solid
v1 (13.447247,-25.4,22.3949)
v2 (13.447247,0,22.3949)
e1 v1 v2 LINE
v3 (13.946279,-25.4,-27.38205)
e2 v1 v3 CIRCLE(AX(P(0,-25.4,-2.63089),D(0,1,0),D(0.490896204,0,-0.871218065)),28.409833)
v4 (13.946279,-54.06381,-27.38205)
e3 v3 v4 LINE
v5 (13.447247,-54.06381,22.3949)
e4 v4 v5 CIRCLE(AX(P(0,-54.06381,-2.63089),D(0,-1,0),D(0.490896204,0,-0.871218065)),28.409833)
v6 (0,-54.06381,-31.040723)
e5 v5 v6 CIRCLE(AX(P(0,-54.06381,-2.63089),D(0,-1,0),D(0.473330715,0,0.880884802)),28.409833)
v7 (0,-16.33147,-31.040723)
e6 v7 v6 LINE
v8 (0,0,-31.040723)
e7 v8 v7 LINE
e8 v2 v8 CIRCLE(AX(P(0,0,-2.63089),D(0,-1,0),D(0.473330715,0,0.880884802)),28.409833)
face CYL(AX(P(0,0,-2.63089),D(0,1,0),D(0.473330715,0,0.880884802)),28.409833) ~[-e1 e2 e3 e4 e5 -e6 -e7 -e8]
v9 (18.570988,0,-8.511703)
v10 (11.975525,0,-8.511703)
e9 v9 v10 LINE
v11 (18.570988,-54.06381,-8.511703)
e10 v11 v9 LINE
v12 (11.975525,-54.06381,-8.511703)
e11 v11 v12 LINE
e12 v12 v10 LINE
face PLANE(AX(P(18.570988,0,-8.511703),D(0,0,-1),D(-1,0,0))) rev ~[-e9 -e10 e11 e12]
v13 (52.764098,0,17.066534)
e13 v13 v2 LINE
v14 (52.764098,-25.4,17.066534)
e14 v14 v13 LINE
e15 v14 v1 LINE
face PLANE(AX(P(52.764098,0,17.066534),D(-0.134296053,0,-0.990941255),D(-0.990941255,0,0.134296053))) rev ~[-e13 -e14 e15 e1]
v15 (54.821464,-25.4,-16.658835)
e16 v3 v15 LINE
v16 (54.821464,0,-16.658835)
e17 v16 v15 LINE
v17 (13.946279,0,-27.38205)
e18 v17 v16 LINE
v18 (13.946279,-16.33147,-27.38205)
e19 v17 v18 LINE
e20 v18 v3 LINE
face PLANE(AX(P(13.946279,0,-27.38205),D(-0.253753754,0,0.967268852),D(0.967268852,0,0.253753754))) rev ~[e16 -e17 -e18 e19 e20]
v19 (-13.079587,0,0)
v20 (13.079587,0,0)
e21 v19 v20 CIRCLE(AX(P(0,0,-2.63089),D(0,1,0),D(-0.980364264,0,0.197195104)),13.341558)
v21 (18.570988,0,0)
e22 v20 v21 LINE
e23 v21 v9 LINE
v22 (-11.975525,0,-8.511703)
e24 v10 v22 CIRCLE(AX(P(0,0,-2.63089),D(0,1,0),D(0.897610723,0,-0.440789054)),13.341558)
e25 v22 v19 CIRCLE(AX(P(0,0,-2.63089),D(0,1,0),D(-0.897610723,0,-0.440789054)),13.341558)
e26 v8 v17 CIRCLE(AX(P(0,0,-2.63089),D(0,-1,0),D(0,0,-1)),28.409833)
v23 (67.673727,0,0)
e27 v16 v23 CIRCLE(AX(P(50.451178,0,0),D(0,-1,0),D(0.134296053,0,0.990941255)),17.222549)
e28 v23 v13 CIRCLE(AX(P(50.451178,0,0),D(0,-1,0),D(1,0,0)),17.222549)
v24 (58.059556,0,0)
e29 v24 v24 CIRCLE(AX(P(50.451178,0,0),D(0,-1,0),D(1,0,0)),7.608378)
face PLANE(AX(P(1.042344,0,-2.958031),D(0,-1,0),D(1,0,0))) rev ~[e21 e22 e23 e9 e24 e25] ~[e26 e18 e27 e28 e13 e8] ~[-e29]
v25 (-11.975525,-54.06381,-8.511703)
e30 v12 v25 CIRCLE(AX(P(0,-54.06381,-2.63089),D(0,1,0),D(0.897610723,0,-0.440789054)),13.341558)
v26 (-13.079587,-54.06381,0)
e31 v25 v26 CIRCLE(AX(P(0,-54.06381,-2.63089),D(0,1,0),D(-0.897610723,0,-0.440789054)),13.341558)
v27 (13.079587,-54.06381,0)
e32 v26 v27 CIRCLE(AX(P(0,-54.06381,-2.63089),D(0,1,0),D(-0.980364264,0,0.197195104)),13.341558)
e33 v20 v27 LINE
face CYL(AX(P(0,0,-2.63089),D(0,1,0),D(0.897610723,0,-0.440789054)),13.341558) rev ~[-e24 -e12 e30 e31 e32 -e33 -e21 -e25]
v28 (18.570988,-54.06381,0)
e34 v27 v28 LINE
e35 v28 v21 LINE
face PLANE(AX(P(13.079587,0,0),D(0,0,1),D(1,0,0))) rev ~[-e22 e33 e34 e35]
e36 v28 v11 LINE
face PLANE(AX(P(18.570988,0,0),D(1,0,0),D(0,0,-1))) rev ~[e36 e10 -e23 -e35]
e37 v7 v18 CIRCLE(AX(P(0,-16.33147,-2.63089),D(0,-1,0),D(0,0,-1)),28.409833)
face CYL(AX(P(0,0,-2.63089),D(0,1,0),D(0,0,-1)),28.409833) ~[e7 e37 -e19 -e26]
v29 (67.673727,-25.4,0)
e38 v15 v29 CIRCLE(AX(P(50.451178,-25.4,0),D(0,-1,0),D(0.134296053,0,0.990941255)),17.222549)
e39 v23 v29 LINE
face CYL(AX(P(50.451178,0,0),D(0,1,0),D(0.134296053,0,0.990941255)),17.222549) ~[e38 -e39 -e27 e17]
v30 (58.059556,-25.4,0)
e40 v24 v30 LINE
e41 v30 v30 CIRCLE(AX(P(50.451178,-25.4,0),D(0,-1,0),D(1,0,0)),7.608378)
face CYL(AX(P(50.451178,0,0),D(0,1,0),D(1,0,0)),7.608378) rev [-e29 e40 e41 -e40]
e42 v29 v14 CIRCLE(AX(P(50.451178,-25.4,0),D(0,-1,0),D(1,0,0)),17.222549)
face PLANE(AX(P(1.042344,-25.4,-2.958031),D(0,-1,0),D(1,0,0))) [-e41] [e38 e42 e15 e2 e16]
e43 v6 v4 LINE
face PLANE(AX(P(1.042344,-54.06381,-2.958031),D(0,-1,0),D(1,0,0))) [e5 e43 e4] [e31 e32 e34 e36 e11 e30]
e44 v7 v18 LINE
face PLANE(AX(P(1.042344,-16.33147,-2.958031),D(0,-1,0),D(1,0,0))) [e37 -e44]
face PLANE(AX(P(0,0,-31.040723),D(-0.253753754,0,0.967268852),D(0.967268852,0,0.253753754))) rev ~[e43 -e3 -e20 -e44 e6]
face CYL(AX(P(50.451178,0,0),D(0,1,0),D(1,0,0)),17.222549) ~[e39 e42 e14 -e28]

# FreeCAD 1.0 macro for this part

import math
import FreeCAD as App
import Part
import Sketcher

V = App.Vector
Q = App.Units.Quantity

doc = App.newDocument("Part")
body = doc.addObject("PartDesign::Body", "Body")

sketch1 = body.newObject("Sketcher::SketchObject", "Sketch")
sketch1.AttachmentSupport = (doc.getObject("XZ_Plane"), [""])
sketch1.MapMode = "FlatFace"
sketch1.addGeometry([
    Part.LineSegment(V(0, -31.040723, 0), V(13.946279, -27.38205, 0)),
    Part.LineSegment(V(13.946279, -27.38205, 0), V(54.821464, -16.658835, 0)),
    Part.ArcOfCircle(Part.Circle(V(50.451178, 0, 0), V(0, 0, 1), 17.222549), math.radians(-75.300248), math.radians(0)),
    Part.ArcOfCircle(Part.Circle(V(50.451178, 0, 0), V(0, 0, 1), 17.222549), math.radians(0), math.radians(82.282084)),
    Part.LineSegment(V(52.764098, 17.066534, 0), V(13.447247, 22.3949, 0)),
    Part.ArcOfCircle(Part.Circle(V(0, -2.63089, 0), V(0, 0, 1), 28.409833), math.radians(61.749281), math.radians(270)),
    Part.ArcOfCircle(Part.Circle(V(0, -2.63089, 0), V(0, 0, 1), 13.341558), math.radians(11.372984), math.radians(168.627016)),
    Part.LineSegment(V(13.079587, 0, 0), V(18.570988, 0, 0)),
    Part.LineSegment(V(18.570988, 0, 0), V(18.570988, -8.511703, 0)),
    Part.LineSegment(V(18.570988, -8.511703, 0), V(11.975525, -8.511703, 0)),
    Part.ArcOfCircle(Part.Circle(V(0, -2.63089, 0), V(0, 0, 1), 13.341558), math.radians(-153.845763), math.radians(-26.154237)),
    Part.ArcOfCircle(Part.Circle(V(0, -2.63089, 0), V(0, 0, 1), 13.341558), math.radians(168.627016), math.radians(206.154237)),
    Part.Circle(V(50.451178, 0, 0), V(0, 0, 1), 7.608378),
], False)
sketch1.addConstraint([
    Sketcher.Constraint("Coincident", 0, 2, 1, 1),
    Sketcher.Constraint("Tangent", 1, 2, 2, 1),
    Sketcher.Constraint("Tangent", 2, 2, 3, 1),
    Sketcher.Constraint("Tangent", 3, 2, 4, 1),
    Sketcher.Constraint("Coincident", 4, 2, 5, 1),
    Sketcher.Constraint("Coincident", 5, 2, 0, 1),
    Sketcher.Constraint("Coincident", 6, 1, 7, 1),
    Sketcher.Constraint("Coincident", 7, 2, 8, 1),
    Sketcher.Constraint("Coincident", 8, 2, 9, 1),
    Sketcher.Constraint("Coincident", 9, 2, 10, 2),
    Sketcher.Constraint("Tangent", 10, 1, 11, 2),
    Sketcher.Constraint("Tangent", 11, 1, 6, 2),
    Sketcher.Constraint("Horizontal", 7),
    Sketcher.Constraint("Vertical", 8),
    Sketcher.Constraint("Horizontal", 9),
    Sketcher.Constraint("Coincident", 6, 3, 5, 3),
    Sketcher.Constraint("Coincident", 10, 3, 5, 3),
    Sketcher.Constraint("Coincident", 12, 3, 2, 3),
    Sketcher.Constraint("Equal", 2, 3),
    Sketcher.Constraint("Symmetric", 6, 1, 11, 1, -1, 1),
    Sketcher.Constraint("Symmetric", 9, 2, 10, 1, -2),
    Sketcher.Constraint("PointOnObject", 2, 3, -1),
    Sketcher.Constraint("PointOnObject", 2, 2, -1),
    Sketcher.Constraint("PointOnObject", 5, 2, -2),
    Sketcher.Constraint("Parallel", 0, 1),
    Sketcher.Constraint("Radius", 2, Q("17.222549 mm")),
    Sketcher.Constraint("Diameter", 12, Q("15.216756 mm")),
    Sketcher.Constraint("DistanceX", 7, 1, 7, 2, Q("5.491401 mm")),
    Sketcher.Constraint("Radius", 5, Q("28.409833 mm")),
    Sketcher.Constraint("Radius", 6, Q("13.341558 mm")),
    Sketcher.Constraint("DistanceX", -1, 1, 3, 2, Q("52.764098 mm")),
    Sketcher.Constraint("DistanceY", -1, 1, 4, 2, Q("22.3949 mm")),
    Sketcher.Constraint("DistanceX", 0, 2, 2, 3, Q("36.504899 mm")),
    Sketcher.Constraint("Distance", 1, Q("42.25835 mm")),
    Sketcher.Constraint("DistanceX", 9, 2, 9, 1, Q("6.595462 mm")),
])
pad1 = body.newObject("PartDesign::Pad", "Pad")
pad1.Profile = sketch1
pad1.Length = Q("1 in")

sketch2 = body.newObject("Sketcher::SketchObject", "Sketch001")
sketch2.AttachmentSupport = (doc.getObject("XZ_Plane"), [""])
sketch2.MapMode = "FlatFace"
sketch2.addGeometry([
    Part.LineSegment(V(13.946279, -27.38205, 0), V(54.821464, -16.658835, 0)),
    Part.ArcOfCircle(Part.Circle(V(50.451178, 0, 0), V(0, 0, 1), 17.222549), math.radians(-75.300248), math.radians(0)),
    Part.ArcOfCircle(Part.Circle(V(50.451178, 0, 0), V(0, 0, 1), 17.222549), math.radians(0), math.radians(82.282084)),
    Part.LineSegment(V(52.764098, 17.066534, 0), V(13.447247, 22.3949, 0)),
    Part.ArcOfCircle(Part.Circle(V(0, -2.63089, 0), V(0, 0, 1), 28.409833), math.radians(61.749281), math.radians(270)),
    Part.ArcOfCircle(Part.Circle(V(0, -2.63089, 0), V(0, 0, 1), 28.409833), math.radians(-90), math.radians(-60.600496)),
    Part.LineSegment(V(-17.951954, 0, 0), V(-13.079587, 0, 0)),
    Part.ArcOfCircle(Part.Circle(V(0, -2.63089, 0), V(0, 0, 1), 13.341558), math.radians(11.372984), math.radians(168.627016)),
    Part.LineSegment(V(13.079587, 0, 0), V(18.570988, 0, 0)),
    Part.LineSegment(V(18.570988, 0, 0), V(18.570988, -8.511703, 0)),
    Part.LineSegment(V(18.570988, -8.511703, 0), V(11.975525, -8.511703, 0)),
    Part.ArcOfCircle(Part.Circle(V(0, -2.63089, 0), V(0, 0, 1), 13.341558), math.radians(-153.845763), math.radians(-26.154237)),
    Part.LineSegment(V(-11.975525, -8.511703, 0), V(-17.951954, -8.511703, 0)),
    Part.LineSegment(V(-17.951954, -8.511703, 0), V(-17.951954, 0, 0)),
    Part.Circle(V(50.451178, 0, 0), V(0, 0, 1), 7.608378),
], False)
sketch2.addConstraint([
    Sketcher.Constraint("Tangent", 0, 2, 1, 1),
    Sketcher.Constraint("Tangent", 1, 2, 2, 1),
    Sketcher.Constraint("Tangent", 2, 2, 3, 1),
    Sketcher.Constraint("Coincident", 3, 2, 4, 1),
    Sketcher.Constraint("Tangent", 4, 2, 5, 1),
    Sketcher.Constraint("Coincident", 5, 2, 0, 1),
    Sketcher.Constraint("Coincident", 6, 2, 7, 2),
    Sketcher.Constraint("Coincident", 7, 1, 8, 1),
    Sketcher.Constraint("Coincident", 8, 2, 9, 1),
    Sketcher.Constraint("Coincident", 9, 2, 10, 1),
    Sketcher.Constraint("Coincident", 10, 2, 11, 2),
    Sketcher.Constraint("Coincident", 11, 1, 12, 1),
    Sketcher.Constraint("Coincident", 12, 2, 13, 1),
    Sketcher.Constraint("Coincident", 13, 2, 6, 1),
    Sketcher.Constraint("Horizontal", 6),
    Sketcher.Constraint("Horizontal", 8),
    Sketcher.Constraint("Vertical", 9),
    Sketcher.Constraint("Horizontal", 10),
    Sketcher.Constraint("Horizontal", 12),
    Sketcher.Constraint("Vertical", 13),
    Sketcher.Constraint("Coincident", 7, 3, 4, 3),
    Sketcher.Constraint("Coincident", 11, 3, 4, 3),
    Sketcher.Constraint("Coincident", 14, 3, 1, 3),
    Sketcher.Constraint("Equal", 1, 2),
    Sketcher.Constraint("Equal", 4, 5),
    Sketcher.Constraint("Equal", 7, 11),
    Sketcher.Constraint("Symmetric", 6, 2, 7, 1, -1, 1),
    Sketcher.Constraint("Symmetric", 10, 2, 11, 1, -2),
    Sketcher.Constraint("PointOnObject", 1, 3, -1),
    Sketcher.Constraint("PointOnObject", 1, 2, -1),
    Sketcher.Constraint("PointOnObject", 4, 2, -2),
    Sketcher.Constraint("Radius", 1, Q("17.222549 mm")),
    Sketcher.Constraint("Diameter", 14, Q("15.216756 mm")),
    Sketcher.Constraint("DistanceX", 8, 1, 8, 2, Q("5.491401 mm")),
    Sketcher.Constraint("Radius", 4, Q("28.409833 mm")),
    Sketcher.Constraint("Radius", 7, Q("13.341558 mm")),
    Sketcher.Constraint("DistanceX", 12, 2, 12, 1, Q("5.976429 mm")),
    Sketcher.Constraint("DistanceX", -1, 1, 2, 2, Q("52.764098 mm")),
    Sketcher.Constraint("DistanceY", -1, 1, 3, 2, Q("22.3949 mm")),
    Sketcher.Constraint("Distance", 0, Q("42.25835 mm")),
    Sketcher.Constraint("Distance", 3, Q("39.676269 mm")),
    Sketcher.Constraint("DistanceX", 6, 1, 6, 2, Q("4.872368 mm")),
])
pad2 = body.newObject("PartDesign::Pad", "Pad001")
pad2.Profile = sketch2
pad2.Length = 16.33147

sketch3 = body.newObject("Sketcher::SketchObject", "Sketch002")
sketch3.AttachmentSupport = (doc.getObject("XZ_Plane"), [""])
sketch3.MapMode = "FlatFace"
sketch3.addGeometry([
    Part.ArcOfCircle(Part.Circle(V(0, -2.63089, 0), V(0, 0, 1), 28.409833), math.radians(-60.600496), math.radians(61.749281)),
    Part.ArcOfCircle(Part.Circle(V(0, -2.63089, 0), V(0, 0, 1), 28.409833), math.radians(61.749281), math.radians(270)),
    Part.LineSegment(V(0, -31.040723, 0), V(13.946279, -27.38205, 0)),
    Part.ArcOfCircle(Part.Circle(V(0, -2.63089, 0), V(0, 0, 1), 13.341558), math.radians(-153.845763), math.radians(-26.154237)),
    Part.ArcOfCircle(Part.Circle(V(0, -2.63089, 0), V(0, 0, 1), 13.341558), math.radians(168.627016), math.radians(206.154237)),
    Part.ArcOfCircle(Part.Circle(V(0, -2.63089, 0), V(0, 0, 1), 13.341558), math.radians(11.372984), math.radians(168.627016)),
    Part.LineSegment(V(13.079587, 0, 0), V(18.570988, 0, 0)),
    Part.LineSegment(V(18.570988, 0, 0), V(18.570988, -8.511703, 0)),
    Part.LineSegment(V(18.570988, -8.511703, 0), V(11.975525, -8.511703, 0)),
], False)
sketch3.addConstraint([
    Sketcher.Constraint("Tangent", 0, 2, 1, 1),
    Sketcher.Constraint("Coincident", 1, 2, 2, 1),
    Sketcher.Constraint("Coincident", 2, 2, 0, 1),
    Sketcher.Constraint("Tangent", 3, 1, 4, 2),
    Sketcher.Constraint("Tangent", 4, 1, 5, 2),
    Sketcher.Constraint("Coincident", 5, 1, 6, 1),
    Sketcher.Constraint("Coincident", 6, 2, 7, 1),
    Sketcher.Constraint("Coincident", 7, 2, 8, 1),
    Sketcher.Constraint("Coincident", 8, 2, 3, 2),
    Sketcher.Constraint("Horizontal", 6),
    Sketcher.Constraint("Vertical", 7),
    Sketcher.Constraint("Horizontal", 8),
    Sketcher.Constraint("Coincident", 3, 3, 0, 3),
    Sketcher.Constraint("Coincident", 5, 3, 0, 3),
    Sketcher.Constraint("Equal", 0, 1),
    Sketcher.Constraint("Symmetric", 4, 1, 5, 1, -1, 1),
    Sketcher.Constraint("Symmetric", 3, 1, 8, 2, -2),
    Sketcher.Constraint("PointOnObject", 1, 2, -2),
    Sketcher.Constraint("DistanceX", 6, 1, 6, 2, Q("5.491401 mm")),
    Sketcher.Constraint("Radius", 0, Q("28.409833 mm")),
    Sketcher.Constraint("Radius", 3, Q("13.341558 mm")),
    Sketcher.Constraint("DistanceY", -1, 1, 0, 2, Q("22.3949 mm")),
    Sketcher.Constraint("DistanceX", 8, 2, 8, 1, Q("6.595462 mm")),
    Sketcher.Constraint("DistanceY", 7, 2, 7, 1, Q("8.511703 mm")),
    Sketcher.Constraint("DistanceX", -1, 1, 2, 2, Q("13.946279 mm")),
])
pad3 = body.newObject("PartDesign::Pad", "Pad002")
pad3.Profile = sketch3
pad3.Length = 54.06381

doc.recompute()
